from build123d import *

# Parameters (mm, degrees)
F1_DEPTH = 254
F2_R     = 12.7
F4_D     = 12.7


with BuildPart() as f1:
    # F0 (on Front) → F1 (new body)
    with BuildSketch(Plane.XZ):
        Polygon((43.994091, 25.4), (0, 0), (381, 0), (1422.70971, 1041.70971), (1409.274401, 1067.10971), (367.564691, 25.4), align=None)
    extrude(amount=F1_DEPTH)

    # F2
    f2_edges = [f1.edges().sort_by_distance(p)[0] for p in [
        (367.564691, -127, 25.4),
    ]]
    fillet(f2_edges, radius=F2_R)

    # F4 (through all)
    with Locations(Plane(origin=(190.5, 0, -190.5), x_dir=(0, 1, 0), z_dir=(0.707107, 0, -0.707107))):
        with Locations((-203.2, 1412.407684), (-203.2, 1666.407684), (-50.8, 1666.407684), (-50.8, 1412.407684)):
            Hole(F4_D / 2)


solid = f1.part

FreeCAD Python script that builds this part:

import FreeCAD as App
import Part
import Sketcher

V = App.Vector
Q = App.Units.Quantity


def edges_at(feature, points):
    """Names of the edges that pass closest to the given points."""
    edges = feature.Shape.Edges
    near = lambda p: min(range(len(edges)), key=lambda i: edges[i].distToShape(Part.Vertex(*p))[0])
    return sorted({f"Edge{near(p) + 1}" for p in points})

doc = App.newDocument("Part")
body = doc.addObject("PartDesign::Body", "Body")

# Sketch on XZ plane
sketch1 = body.newObject("Sketcher::SketchObject", "Sketch")
sketch1.AttachmentSupport = (doc.getObject("XZ_Plane"), [""])
sketch1.MapMode = "FlatFace"
sketch1.addGeometry([
    Part.LineSegment(V(44, 25, 0), V(0, 0, 0)),  # 0
    Part.LineSegment(V(0, 0, 0), V(381, 0, 0)),  # 1
    Part.LineSegment(V(381, 0, 0), V(1423, 1042, 0)),  # 2
    Part.LineSegment(V(1423, 1042, 0), V(1409, 1067, 0)),  # 3
    Part.LineSegment(V(1409, 1067, 0), V(368, 25, 0)),  # 4
    Part.LineSegment(V(368, 25, 0), V(44, 25, 0)),  # 5
], False)
sketch1.addConstraint([
    Sketcher.Constraint("Coincident", 0, 2, 1, 1),
    Sketcher.Constraint("Coincident", 1, 2, 2, 1),
    Sketcher.Constraint("Coincident", 2, 2, 3, 1),
    Sketcher.Constraint("Coincident", 3, 2, 4, 1),
    Sketcher.Constraint("Coincident", 4, 2, 5, 1),
    Sketcher.Constraint("Coincident", 5, 2, 0, 1),
    Sketcher.Constraint("Horizontal", 1),
    Sketcher.Constraint("Horizontal", 5),
    Sketcher.Constraint("Coincident", 0, 2, -1, 1),
    Sketcher.Constraint("Parallel", 2, 4),
    Sketcher.Constraint("Equal", 2, 4),
    Sketcher.Constraint("DistanceX", 1, 1, 1, 2, Q("15 in")),
    Sketcher.Constraint("Distance", 0, Q("2 in")),
    Sketcher.Constraint("Distance", 2, Q("58 in")),
    Sketcher.Constraint("DistanceY", -1, 1, 4, 2, Q("1 in")),
    Sketcher.Constraint("Angle", 2, Q("45 deg")),
    Sketcher.Constraint("DistanceX", 5, 2, 5, 1, Q("12.739 in")),
])
pad1 = body.newObject("PartDesign::Pad", "Pad")
pad1.Profile = sketch1
pad1.Length = Q("10 in")
doc.recompute()

fillet = body.newObject("PartDesign::Fillet", "Fillet")
fillet.Base = (pad1, edges_at(pad1, [(367.565, -127, 25.4)]))
fillet.Radius = Q("0.5 in")

# Sketch on an angled plane
sketch2 = body.newObject("Sketcher::SketchObject", "Sketch001")
sketch2.Placement = App.Placement(V(190.5, 0, -190.5), App.Rotation(V(0, 1, 0), V(0.707106781, 0, 0.707106781), V(0.707106781, 0, -0.707106781), "ZXY"))
sketch2.addGeometry([
    Part.Circle(V(-203, 1412, 0), V(0, 0, 1), 6),
    Part.Circle(V(-203, 1666, 0), V(0, 0, 1), 6),
    Part.Circle(V(-51, 1666, 0), V(0, 0, 1), 6),
    Part.Circle(V(-51, 1412, 0), V(0, 0, 1), 6),
], False)
sketch2.addConstraint([
    Sketcher.Constraint("Equal", 0, 1),
    Sketcher.Constraint("Equal", 1, 2),
    Sketcher.Constraint("Equal", 2, 3),
    Sketcher.Constraint("Horizontal", 1, 3, 2, 3),
    Sketcher.Constraint("Horizontal", 0, 3, 3, 3),
    Sketcher.Constraint("Vertical", 0, 3, 1, 3),
    Sketcher.Constraint("Vertical", 2, 3, 3, 3),
    Sketcher.Constraint("Diameter", 0, Q("0.5 in")),
    Sketcher.Constraint("DistanceX", 0, 3, -1, 1, Q("8 in")),
    Sketcher.Constraint("DistanceX", 2, 3, -1, 1, Q("2 in")),
    Sketcher.Constraint("DistanceY", 0, 3, 1, 3, Q("10 in")),
    Sketcher.Constraint("DistanceY", -1, 1, 0, 3, Q("1412.407683 mm")),
])
doc.recompute()
hole = body.newObject("PartDesign::Hole", "Hole")
hole.Profile = sketch2
hole.ThreadType = "None"
hole.Diameter = Q("0.5 in")
hole.DepthType = "ThroughAll"

doc.recompute()
